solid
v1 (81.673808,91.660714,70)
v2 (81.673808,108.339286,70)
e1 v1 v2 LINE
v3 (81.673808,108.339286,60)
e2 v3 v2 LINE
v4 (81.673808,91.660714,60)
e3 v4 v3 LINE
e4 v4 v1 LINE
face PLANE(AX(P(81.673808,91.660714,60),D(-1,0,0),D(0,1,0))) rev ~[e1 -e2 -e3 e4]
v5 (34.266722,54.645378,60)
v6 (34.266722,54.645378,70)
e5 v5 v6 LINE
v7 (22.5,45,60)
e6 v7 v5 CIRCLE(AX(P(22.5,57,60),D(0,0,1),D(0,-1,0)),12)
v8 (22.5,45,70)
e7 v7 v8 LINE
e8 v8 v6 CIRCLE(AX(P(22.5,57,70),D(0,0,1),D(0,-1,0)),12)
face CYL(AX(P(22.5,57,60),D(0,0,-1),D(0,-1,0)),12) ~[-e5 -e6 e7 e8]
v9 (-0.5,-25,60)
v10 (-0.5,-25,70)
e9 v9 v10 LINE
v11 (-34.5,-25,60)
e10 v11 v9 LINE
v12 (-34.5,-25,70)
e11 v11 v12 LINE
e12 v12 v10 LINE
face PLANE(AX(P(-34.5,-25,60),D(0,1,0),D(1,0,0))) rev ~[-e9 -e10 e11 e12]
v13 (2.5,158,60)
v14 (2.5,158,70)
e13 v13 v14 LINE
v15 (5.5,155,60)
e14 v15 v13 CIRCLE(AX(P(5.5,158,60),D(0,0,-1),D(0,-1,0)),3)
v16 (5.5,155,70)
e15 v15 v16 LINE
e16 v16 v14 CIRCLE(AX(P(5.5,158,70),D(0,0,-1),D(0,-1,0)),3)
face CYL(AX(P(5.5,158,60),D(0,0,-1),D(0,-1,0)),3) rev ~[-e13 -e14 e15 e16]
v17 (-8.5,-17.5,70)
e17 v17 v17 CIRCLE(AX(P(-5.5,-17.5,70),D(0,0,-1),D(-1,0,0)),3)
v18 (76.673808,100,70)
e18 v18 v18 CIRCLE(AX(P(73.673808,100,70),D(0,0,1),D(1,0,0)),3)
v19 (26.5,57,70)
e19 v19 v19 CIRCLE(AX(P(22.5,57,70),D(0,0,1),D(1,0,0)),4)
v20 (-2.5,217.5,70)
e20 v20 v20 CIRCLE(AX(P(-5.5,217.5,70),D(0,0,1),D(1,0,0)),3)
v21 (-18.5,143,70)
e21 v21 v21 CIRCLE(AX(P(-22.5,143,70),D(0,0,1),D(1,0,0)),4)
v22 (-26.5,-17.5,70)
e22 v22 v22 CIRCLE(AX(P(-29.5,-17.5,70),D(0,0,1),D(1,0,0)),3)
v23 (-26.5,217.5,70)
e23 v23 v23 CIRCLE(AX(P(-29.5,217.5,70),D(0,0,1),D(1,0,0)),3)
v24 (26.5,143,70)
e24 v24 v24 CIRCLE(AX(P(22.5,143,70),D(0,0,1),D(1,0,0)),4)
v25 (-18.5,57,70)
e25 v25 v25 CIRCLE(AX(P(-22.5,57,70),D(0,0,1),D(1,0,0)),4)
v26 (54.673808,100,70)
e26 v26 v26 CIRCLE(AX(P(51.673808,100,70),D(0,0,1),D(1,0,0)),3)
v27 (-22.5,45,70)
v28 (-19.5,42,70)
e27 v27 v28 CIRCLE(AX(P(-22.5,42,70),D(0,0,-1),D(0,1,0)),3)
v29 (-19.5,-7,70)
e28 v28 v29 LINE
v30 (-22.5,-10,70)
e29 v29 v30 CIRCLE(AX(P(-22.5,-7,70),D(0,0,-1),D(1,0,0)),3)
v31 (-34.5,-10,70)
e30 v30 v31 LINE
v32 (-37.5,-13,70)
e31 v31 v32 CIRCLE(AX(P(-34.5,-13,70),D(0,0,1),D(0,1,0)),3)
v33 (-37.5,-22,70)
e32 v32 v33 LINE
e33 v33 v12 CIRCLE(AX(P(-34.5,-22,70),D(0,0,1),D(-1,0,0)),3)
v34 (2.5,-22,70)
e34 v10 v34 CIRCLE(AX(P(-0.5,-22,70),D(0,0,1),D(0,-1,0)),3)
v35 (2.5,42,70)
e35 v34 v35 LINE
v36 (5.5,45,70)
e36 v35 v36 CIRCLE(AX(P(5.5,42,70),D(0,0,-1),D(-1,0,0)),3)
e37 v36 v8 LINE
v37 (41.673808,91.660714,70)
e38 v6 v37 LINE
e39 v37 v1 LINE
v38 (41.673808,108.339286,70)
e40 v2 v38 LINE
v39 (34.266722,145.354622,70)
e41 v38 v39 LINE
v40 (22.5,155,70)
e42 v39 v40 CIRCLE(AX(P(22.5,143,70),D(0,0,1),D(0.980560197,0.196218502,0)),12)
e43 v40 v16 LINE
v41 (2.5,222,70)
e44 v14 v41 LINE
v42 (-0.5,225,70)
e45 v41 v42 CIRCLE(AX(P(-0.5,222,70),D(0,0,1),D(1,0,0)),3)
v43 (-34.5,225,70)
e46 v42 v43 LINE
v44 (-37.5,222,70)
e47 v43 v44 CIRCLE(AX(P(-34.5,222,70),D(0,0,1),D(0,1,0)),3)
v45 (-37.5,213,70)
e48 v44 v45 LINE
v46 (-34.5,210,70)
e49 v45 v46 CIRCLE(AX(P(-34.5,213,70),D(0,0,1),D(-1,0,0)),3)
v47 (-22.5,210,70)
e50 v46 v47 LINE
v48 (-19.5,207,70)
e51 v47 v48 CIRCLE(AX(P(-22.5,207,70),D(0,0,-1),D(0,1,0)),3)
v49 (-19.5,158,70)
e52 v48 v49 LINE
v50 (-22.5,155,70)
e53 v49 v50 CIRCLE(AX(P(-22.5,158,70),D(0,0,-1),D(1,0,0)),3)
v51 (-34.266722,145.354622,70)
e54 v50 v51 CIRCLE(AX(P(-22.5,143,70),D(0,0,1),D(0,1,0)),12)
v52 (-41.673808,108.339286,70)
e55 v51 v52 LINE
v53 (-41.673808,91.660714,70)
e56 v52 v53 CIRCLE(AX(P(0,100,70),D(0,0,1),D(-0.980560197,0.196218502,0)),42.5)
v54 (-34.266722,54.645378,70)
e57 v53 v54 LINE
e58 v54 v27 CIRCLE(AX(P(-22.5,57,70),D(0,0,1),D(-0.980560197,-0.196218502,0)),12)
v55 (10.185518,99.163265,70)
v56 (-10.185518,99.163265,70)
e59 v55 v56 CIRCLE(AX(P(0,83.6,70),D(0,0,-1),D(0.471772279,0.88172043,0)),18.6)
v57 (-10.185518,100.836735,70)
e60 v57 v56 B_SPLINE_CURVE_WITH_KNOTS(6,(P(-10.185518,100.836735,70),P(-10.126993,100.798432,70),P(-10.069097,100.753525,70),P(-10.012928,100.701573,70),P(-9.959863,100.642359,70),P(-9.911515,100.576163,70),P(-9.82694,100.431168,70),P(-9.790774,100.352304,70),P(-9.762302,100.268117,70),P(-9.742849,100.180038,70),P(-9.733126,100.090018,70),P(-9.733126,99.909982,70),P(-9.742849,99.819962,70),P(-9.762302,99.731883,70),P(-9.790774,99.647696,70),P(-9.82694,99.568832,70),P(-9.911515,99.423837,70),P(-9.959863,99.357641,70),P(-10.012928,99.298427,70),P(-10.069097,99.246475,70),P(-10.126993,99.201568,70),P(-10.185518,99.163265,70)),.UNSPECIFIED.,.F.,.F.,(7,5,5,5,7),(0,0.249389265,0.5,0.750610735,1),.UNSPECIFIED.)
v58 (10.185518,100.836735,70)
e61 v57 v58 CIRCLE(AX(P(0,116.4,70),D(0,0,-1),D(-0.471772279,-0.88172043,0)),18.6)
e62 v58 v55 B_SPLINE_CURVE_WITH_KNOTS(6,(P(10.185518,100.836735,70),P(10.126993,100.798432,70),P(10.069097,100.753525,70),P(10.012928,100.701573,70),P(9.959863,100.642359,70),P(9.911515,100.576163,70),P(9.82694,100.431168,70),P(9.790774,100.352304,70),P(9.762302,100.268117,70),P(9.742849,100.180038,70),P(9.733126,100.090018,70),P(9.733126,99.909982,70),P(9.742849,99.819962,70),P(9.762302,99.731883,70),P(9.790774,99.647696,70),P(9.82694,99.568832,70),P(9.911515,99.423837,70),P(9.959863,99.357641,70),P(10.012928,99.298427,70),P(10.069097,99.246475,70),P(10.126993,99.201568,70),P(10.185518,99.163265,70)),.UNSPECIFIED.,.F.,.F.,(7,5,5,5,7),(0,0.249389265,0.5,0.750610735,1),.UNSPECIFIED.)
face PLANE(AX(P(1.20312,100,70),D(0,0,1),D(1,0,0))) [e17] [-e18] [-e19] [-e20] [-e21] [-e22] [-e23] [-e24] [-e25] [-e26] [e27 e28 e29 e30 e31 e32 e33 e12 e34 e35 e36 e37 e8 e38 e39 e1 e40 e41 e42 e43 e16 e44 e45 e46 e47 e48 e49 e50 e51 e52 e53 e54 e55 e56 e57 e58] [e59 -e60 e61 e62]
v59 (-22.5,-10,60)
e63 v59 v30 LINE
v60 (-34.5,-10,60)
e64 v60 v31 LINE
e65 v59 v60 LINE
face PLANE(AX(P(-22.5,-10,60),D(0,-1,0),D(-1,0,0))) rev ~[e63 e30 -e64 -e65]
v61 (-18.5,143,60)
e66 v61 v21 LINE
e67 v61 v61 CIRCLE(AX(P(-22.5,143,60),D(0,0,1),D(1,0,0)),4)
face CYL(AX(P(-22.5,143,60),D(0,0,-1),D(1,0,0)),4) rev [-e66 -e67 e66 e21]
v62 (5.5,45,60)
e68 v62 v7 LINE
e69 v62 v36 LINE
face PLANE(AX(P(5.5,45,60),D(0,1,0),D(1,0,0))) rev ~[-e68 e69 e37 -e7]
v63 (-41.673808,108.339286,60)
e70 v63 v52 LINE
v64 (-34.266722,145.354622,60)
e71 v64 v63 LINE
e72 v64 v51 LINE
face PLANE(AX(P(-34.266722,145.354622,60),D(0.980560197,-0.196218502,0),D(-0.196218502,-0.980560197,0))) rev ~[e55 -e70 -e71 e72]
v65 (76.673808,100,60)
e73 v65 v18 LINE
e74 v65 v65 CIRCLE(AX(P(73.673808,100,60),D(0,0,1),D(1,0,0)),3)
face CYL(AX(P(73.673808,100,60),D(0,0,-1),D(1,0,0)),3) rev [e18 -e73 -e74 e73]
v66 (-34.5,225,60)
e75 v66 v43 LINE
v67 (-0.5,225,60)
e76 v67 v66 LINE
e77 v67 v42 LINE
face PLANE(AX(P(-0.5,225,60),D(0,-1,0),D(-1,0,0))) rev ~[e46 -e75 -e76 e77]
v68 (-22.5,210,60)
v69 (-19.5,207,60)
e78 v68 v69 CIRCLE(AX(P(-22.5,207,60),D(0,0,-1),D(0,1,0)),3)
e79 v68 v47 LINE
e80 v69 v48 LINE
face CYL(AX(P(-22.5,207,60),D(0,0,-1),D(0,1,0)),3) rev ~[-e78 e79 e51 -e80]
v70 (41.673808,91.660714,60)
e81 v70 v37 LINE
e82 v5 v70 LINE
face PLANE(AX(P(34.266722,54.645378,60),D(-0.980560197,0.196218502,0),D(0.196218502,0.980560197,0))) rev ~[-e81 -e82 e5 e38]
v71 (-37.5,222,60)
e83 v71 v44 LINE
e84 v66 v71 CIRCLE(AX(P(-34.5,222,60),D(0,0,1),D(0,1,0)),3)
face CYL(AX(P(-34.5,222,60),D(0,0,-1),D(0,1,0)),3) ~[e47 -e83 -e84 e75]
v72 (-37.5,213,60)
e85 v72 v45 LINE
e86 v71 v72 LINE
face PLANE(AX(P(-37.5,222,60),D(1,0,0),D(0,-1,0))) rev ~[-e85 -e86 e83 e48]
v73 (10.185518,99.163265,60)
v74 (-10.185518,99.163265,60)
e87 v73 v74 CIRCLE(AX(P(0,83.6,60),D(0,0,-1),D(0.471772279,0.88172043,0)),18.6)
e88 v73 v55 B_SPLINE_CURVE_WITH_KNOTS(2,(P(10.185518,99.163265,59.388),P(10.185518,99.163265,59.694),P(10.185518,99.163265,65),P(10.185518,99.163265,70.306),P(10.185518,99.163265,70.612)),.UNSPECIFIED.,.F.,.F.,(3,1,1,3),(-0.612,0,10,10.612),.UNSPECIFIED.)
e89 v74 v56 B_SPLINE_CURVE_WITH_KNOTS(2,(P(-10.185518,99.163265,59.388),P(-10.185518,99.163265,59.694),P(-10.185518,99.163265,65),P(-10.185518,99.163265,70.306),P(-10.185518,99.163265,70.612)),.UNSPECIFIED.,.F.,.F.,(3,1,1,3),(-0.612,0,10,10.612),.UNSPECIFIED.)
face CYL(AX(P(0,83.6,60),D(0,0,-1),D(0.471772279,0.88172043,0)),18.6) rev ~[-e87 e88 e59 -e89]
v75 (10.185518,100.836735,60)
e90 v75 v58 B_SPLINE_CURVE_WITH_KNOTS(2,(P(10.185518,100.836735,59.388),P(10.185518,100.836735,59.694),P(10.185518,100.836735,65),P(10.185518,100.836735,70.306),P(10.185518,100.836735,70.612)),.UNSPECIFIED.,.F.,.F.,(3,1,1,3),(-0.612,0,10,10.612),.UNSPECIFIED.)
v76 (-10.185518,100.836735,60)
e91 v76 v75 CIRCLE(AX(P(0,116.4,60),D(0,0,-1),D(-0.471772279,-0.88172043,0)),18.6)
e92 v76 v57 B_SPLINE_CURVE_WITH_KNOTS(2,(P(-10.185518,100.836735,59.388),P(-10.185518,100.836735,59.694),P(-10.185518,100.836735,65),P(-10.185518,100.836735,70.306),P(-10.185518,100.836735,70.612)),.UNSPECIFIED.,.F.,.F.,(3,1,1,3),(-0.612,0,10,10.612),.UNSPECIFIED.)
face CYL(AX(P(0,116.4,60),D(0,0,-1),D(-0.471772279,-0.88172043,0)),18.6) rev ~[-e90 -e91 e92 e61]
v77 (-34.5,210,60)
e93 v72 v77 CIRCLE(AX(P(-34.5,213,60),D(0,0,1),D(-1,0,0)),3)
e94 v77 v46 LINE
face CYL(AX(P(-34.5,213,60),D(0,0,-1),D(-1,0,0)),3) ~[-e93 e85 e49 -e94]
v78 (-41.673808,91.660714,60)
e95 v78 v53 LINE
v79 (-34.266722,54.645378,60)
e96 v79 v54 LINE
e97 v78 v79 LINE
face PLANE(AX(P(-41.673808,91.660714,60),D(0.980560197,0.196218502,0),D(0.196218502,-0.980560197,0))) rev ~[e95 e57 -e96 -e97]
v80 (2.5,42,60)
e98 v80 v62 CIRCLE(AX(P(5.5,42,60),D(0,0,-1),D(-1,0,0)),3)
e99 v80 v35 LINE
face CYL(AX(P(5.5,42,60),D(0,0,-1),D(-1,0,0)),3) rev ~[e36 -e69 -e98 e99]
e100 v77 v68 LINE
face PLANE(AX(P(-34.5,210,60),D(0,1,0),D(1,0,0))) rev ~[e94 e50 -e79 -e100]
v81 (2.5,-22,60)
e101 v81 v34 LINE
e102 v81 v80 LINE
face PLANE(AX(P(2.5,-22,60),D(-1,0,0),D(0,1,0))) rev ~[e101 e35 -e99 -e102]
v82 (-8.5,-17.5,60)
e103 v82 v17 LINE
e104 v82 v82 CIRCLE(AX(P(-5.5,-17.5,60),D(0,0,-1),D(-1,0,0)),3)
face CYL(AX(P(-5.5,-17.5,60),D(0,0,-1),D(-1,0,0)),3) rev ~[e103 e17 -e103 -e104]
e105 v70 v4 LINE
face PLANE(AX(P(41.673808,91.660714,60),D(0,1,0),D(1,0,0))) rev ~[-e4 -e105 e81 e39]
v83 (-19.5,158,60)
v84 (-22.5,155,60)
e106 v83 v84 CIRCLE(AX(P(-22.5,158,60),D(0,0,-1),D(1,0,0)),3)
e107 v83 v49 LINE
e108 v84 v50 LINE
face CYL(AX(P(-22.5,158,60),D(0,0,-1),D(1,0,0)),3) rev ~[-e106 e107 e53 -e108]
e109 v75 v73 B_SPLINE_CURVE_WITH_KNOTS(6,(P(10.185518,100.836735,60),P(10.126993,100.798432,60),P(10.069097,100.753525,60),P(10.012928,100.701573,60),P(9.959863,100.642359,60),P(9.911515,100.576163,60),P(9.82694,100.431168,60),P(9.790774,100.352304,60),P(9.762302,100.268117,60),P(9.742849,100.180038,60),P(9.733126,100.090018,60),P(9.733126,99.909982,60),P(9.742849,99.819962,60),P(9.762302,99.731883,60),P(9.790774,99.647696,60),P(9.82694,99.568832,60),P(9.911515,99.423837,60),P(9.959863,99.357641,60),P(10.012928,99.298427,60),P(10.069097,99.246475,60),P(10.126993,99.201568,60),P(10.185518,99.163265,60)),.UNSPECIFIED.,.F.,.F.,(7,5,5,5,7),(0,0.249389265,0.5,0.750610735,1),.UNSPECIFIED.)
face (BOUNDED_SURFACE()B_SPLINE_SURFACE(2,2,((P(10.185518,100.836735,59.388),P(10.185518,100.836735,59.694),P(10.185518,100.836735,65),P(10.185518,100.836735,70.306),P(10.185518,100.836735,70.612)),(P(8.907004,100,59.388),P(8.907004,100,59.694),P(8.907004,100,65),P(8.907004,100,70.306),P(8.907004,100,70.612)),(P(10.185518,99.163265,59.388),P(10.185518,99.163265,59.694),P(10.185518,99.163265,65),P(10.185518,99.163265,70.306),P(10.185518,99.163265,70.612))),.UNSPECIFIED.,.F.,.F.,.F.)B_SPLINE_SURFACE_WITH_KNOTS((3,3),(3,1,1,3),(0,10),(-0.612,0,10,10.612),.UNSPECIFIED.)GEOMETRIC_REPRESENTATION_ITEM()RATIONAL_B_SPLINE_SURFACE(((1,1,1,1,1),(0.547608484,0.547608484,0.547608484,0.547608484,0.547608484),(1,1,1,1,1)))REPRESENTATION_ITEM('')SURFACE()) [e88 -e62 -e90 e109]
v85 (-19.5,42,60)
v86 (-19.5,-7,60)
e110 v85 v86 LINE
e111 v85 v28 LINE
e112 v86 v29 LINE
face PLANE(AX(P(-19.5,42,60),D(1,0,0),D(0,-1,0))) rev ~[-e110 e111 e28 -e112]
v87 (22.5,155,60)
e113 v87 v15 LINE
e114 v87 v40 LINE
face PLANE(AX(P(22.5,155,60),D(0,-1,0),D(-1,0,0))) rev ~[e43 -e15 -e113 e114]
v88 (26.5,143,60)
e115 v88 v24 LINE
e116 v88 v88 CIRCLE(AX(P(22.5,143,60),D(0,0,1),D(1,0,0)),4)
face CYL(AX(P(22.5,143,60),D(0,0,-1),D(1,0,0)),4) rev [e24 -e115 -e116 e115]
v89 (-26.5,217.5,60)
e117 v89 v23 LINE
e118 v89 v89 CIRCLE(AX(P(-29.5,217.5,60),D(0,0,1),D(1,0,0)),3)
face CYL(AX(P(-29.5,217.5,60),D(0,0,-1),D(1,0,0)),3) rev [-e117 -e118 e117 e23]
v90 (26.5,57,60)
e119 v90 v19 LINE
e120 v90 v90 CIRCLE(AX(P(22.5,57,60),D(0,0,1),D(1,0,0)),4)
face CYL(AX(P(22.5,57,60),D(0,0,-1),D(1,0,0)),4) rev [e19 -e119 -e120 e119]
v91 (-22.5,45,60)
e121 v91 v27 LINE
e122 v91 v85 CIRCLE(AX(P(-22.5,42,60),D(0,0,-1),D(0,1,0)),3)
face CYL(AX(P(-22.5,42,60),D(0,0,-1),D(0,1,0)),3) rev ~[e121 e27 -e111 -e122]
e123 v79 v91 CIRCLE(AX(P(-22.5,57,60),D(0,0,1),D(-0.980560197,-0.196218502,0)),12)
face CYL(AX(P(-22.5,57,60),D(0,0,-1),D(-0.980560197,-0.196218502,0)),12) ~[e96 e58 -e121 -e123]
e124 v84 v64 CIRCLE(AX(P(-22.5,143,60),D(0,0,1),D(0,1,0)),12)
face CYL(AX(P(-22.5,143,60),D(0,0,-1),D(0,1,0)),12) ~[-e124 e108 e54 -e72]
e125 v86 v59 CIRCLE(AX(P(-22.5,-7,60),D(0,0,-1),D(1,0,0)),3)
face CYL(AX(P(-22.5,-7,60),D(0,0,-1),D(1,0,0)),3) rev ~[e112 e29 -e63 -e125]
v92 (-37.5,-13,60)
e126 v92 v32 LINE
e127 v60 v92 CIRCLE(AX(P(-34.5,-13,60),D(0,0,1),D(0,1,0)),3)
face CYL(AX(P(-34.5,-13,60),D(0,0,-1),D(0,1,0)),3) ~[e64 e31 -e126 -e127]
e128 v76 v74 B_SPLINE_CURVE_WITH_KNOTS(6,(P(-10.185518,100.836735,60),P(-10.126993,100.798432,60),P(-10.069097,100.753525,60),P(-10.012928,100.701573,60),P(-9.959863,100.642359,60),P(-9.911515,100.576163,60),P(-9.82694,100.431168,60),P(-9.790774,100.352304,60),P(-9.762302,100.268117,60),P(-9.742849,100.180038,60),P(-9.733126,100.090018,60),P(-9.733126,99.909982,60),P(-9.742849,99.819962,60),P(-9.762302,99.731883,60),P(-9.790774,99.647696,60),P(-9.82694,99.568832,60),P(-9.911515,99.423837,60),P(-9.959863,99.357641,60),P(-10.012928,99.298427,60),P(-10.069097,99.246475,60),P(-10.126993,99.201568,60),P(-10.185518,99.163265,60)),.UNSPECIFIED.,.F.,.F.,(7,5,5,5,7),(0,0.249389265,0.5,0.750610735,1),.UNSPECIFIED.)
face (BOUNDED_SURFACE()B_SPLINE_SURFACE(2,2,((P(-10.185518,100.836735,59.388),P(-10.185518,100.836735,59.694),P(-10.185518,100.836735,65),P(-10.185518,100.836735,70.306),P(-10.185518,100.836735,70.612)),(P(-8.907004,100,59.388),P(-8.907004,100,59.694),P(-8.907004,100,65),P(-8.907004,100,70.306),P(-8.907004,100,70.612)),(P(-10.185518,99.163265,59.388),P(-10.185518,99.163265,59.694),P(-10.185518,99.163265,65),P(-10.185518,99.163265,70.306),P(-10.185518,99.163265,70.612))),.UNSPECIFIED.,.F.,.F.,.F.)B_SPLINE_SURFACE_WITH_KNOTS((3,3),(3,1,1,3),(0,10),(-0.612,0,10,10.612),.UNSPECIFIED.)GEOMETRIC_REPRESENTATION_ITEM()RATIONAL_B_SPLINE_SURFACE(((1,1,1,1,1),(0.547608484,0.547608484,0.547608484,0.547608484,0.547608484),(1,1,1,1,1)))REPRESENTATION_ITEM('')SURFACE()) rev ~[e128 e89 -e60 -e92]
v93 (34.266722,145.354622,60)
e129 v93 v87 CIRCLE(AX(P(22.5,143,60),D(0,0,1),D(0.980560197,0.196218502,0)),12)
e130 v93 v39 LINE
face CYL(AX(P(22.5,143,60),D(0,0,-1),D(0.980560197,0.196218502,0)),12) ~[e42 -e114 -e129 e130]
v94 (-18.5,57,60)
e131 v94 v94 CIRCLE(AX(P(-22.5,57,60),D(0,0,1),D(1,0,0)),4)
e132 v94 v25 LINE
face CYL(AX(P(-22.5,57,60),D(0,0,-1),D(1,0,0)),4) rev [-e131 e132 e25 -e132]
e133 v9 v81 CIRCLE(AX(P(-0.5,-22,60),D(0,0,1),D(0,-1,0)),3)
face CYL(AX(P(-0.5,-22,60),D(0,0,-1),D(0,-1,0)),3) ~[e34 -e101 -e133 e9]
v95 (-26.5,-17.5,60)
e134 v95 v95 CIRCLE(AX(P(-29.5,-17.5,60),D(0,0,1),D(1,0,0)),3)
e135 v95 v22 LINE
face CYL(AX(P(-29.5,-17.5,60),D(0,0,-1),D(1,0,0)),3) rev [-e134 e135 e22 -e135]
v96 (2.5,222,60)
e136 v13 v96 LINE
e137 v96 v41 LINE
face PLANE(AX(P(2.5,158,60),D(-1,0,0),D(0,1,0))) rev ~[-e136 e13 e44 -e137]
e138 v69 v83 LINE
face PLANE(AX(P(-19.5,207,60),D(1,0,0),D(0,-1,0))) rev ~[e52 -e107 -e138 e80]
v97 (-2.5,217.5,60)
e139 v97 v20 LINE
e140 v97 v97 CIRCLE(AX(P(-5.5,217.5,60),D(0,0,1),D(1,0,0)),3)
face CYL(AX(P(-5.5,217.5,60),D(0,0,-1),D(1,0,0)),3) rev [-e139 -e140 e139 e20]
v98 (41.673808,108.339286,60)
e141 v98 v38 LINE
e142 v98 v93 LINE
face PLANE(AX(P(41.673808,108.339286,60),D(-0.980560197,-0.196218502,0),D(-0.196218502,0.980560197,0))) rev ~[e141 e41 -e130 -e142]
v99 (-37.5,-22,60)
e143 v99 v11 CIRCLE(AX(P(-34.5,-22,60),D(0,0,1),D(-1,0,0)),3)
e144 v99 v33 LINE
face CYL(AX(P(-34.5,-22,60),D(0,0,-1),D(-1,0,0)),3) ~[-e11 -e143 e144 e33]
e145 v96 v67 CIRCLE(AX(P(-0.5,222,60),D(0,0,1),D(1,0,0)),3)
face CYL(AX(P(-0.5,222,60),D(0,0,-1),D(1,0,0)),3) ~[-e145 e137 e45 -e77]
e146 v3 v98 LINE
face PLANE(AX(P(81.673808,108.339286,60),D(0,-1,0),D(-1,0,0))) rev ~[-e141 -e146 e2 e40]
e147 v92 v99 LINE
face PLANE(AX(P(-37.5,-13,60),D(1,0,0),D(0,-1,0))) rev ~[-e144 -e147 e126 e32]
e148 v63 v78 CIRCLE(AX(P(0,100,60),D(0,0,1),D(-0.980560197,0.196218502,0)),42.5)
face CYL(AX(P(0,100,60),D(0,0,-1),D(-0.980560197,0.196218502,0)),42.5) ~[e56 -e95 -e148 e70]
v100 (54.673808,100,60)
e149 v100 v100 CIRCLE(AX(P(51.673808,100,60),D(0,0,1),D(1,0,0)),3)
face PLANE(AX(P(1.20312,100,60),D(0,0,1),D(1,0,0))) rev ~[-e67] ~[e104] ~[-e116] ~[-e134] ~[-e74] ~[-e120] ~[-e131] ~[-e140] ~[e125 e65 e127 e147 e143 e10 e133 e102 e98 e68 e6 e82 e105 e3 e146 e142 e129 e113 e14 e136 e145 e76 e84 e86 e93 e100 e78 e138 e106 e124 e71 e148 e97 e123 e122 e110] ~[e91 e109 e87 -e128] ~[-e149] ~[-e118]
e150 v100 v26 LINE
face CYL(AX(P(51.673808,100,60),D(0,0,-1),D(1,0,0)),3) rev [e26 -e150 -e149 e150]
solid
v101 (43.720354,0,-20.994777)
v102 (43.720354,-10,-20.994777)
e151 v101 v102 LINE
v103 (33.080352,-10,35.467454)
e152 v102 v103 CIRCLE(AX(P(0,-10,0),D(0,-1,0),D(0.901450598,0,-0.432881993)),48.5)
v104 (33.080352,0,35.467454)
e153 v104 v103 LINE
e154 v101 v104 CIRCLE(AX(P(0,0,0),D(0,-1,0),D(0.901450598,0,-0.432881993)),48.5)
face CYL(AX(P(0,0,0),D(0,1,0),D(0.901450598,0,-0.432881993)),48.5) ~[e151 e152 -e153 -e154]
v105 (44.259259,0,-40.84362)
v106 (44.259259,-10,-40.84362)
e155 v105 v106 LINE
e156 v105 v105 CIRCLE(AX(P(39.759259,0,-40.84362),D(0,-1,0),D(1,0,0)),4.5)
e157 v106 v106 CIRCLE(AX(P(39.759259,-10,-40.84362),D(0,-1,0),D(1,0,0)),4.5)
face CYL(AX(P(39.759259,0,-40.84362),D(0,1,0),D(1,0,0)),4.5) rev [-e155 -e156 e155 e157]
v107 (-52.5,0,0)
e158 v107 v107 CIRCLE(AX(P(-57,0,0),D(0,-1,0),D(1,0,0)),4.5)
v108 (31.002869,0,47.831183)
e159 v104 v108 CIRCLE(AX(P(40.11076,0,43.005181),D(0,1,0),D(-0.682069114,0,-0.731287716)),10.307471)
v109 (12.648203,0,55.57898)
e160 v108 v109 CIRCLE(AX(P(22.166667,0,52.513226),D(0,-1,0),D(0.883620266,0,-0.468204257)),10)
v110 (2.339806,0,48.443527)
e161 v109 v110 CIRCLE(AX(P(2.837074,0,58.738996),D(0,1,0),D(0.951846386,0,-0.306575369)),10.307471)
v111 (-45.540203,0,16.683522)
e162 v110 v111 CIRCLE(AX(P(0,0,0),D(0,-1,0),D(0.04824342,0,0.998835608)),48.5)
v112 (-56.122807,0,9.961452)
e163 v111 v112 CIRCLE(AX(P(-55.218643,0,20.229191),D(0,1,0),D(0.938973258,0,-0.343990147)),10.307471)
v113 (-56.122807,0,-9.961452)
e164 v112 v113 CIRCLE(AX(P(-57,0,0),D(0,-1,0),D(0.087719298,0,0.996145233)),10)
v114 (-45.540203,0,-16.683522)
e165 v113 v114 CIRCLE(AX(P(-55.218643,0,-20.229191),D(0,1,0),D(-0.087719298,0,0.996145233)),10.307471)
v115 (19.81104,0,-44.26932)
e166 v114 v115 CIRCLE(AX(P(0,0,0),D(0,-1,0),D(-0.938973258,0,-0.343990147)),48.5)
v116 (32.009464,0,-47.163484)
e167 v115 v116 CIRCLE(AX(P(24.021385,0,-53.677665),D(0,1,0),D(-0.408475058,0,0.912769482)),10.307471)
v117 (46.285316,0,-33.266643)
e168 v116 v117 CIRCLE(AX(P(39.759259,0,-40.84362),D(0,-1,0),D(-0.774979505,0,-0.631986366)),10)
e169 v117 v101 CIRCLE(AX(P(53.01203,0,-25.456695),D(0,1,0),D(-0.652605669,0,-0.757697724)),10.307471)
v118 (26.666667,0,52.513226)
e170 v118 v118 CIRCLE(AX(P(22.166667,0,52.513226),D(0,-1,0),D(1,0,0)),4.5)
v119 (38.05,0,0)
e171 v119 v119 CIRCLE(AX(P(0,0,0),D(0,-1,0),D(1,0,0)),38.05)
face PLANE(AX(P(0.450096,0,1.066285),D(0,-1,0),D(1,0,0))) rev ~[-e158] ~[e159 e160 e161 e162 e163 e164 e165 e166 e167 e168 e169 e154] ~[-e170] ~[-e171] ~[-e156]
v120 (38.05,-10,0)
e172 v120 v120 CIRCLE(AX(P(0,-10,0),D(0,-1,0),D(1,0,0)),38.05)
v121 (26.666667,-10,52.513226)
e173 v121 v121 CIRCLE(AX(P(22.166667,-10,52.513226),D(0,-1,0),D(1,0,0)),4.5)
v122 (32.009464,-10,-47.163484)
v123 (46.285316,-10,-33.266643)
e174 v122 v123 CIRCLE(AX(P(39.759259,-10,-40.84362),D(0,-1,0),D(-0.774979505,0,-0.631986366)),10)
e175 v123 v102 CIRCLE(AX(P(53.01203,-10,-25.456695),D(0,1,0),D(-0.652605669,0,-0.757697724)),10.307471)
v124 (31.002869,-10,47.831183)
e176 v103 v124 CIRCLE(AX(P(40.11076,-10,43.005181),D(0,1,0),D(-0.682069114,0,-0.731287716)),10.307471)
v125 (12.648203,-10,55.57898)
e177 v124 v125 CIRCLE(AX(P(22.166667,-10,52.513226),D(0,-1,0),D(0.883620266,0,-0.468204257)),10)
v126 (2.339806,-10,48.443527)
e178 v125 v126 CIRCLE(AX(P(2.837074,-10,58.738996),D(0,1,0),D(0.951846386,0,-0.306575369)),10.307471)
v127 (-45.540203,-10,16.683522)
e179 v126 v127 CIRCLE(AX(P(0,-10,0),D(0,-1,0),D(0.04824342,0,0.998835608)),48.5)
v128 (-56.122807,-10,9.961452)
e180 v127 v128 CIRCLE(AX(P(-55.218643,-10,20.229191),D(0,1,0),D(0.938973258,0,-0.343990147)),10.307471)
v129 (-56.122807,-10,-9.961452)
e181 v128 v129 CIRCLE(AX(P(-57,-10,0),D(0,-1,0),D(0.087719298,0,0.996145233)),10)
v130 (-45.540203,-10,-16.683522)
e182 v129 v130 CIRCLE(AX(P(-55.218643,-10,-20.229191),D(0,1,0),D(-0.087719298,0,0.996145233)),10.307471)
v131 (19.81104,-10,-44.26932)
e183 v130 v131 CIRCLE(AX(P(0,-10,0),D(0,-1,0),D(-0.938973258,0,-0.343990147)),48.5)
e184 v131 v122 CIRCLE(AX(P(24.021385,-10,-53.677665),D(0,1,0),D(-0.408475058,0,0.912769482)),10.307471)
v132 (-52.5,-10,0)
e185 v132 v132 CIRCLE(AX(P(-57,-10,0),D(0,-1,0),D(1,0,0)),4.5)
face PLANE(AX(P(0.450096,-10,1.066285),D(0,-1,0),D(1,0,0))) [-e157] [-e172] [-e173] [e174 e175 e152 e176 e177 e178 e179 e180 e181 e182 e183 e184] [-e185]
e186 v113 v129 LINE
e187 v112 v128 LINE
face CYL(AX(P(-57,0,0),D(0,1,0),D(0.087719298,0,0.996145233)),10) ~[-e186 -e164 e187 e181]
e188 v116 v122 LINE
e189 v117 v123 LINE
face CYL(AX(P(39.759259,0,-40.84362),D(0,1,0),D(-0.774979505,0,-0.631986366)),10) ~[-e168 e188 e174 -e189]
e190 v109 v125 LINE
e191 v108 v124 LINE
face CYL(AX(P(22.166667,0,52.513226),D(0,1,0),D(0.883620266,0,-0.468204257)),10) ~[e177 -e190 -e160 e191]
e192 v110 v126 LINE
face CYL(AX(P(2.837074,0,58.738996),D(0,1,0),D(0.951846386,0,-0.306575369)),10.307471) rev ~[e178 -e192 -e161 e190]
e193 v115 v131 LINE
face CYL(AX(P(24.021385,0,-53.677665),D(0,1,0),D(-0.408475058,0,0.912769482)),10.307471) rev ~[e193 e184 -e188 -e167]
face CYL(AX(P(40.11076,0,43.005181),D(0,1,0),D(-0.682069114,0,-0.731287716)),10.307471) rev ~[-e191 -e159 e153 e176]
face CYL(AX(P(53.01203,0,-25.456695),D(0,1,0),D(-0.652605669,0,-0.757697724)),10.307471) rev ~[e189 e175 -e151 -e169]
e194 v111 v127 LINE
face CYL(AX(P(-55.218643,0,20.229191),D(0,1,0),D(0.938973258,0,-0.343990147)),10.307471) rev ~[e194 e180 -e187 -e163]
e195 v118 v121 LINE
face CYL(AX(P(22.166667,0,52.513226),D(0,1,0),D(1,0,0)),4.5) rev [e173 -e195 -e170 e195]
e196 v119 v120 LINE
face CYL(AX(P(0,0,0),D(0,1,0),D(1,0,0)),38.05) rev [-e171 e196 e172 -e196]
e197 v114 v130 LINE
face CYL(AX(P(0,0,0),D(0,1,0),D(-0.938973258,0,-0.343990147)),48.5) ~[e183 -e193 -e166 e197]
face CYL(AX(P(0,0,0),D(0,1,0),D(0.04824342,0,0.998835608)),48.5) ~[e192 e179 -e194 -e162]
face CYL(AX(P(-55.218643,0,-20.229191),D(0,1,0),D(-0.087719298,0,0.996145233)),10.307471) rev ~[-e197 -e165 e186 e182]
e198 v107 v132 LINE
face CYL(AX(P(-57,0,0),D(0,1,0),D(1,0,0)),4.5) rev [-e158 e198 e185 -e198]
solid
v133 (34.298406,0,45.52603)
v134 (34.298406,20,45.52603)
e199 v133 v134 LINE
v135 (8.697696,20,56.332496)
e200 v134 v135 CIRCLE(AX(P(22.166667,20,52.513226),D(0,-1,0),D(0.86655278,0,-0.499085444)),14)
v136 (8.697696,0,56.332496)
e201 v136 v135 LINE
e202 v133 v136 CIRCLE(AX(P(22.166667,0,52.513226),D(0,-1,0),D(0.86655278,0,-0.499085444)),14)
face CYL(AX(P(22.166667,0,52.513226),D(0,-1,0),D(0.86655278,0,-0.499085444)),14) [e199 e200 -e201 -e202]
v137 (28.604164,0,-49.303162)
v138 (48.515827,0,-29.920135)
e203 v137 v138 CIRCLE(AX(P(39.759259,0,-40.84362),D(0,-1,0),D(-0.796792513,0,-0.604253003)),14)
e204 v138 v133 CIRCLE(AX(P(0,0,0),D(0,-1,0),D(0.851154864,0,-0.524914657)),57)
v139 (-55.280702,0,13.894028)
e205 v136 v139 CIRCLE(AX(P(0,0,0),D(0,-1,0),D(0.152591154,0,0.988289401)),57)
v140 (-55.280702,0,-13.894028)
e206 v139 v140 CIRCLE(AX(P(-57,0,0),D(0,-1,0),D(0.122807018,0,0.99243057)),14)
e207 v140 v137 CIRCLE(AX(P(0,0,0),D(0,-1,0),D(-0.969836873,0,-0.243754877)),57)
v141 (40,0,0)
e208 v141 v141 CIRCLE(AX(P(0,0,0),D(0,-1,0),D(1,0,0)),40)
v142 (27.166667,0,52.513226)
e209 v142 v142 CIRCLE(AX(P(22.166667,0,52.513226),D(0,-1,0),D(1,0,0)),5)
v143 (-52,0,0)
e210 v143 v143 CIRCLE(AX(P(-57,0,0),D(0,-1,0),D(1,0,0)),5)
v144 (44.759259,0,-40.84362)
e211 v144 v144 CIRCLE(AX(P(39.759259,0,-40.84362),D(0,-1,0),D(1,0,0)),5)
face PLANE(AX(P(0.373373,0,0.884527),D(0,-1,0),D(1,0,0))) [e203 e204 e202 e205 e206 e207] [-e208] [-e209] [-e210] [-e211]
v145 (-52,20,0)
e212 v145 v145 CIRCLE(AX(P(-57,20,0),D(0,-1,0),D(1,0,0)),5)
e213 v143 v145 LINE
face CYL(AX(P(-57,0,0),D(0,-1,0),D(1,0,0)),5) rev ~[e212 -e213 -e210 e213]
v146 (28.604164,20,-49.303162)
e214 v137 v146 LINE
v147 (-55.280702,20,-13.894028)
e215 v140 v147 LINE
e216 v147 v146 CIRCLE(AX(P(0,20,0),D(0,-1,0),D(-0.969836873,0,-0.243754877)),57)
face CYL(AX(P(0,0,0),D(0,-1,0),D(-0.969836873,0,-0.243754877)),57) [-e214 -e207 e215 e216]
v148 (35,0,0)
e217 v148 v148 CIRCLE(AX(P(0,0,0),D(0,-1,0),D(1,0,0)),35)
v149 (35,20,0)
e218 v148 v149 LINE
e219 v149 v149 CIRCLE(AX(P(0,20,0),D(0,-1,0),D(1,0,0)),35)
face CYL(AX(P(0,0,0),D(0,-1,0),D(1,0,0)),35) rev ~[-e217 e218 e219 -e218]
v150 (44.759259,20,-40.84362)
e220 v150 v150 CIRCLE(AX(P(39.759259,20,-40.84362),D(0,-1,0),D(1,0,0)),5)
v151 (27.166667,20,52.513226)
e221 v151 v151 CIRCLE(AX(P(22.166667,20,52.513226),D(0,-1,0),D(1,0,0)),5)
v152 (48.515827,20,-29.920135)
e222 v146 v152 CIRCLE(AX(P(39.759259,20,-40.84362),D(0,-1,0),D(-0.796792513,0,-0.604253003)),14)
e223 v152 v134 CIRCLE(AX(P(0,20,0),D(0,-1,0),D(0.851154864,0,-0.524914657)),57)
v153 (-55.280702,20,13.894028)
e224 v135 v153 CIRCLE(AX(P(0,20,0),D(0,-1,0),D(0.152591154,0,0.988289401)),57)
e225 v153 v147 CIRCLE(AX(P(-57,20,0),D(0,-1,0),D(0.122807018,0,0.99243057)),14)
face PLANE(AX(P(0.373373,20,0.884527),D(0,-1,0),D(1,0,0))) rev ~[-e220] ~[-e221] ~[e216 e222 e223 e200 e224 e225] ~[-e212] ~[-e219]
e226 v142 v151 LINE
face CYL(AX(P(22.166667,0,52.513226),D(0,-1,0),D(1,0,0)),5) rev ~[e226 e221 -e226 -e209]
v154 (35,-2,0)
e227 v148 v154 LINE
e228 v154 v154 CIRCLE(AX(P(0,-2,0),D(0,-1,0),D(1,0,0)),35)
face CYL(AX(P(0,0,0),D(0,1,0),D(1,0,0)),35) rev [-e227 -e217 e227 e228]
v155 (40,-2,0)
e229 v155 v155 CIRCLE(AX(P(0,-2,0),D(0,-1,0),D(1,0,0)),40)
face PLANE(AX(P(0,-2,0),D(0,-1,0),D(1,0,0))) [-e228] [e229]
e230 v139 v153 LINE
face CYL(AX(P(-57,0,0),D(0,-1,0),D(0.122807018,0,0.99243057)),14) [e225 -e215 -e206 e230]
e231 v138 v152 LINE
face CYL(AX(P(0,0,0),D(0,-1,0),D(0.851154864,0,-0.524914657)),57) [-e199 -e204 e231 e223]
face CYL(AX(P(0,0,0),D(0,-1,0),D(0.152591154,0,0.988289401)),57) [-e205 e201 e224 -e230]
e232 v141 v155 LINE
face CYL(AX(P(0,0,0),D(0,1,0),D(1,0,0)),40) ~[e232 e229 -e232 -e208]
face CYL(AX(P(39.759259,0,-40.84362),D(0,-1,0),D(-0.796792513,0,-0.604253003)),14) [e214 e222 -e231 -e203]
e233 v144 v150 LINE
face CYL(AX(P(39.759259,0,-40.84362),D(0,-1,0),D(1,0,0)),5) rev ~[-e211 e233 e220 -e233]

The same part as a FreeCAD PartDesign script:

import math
import FreeCAD as App
import Part
import Sketcher
Q = App.Units.Quantity


def edges_at(feature, points):
    """Names of the edges that pass closest to the given points."""
    edges = feature.Shape.Edges
    near = lambda p: min(range(len(edges)), key=lambda i: edges[i].distToShape(Part.Vertex(*p))[0])
    return sorted({f"Edge{near(p) + 1}" for p in points})

doc = App.newDocument("Part")
body = doc.addObject("PartDesign::Body", "Body")

# Sketch on XZ plane
sketch1 = doc.addObject("Sketcher::SketchObject", "Sketch")
body.addObject(sketch1)
sketch1.AttachmentSupport = (doc.XZ_Plane, [""])
sketch1.MapMode = "FlatFace"
sketch1.addGeometry([
    Part.Circle(App.Vector(0, 0, 0), App.Vector(0, 0, 1), 40),
    Part.Circle(App.Vector(0, 0, 0), App.Vector(0, 0, 1), 35),
], False)
sketch1.addConstraint([
    Sketcher.Constraint("Coincident", 0, 3, -1, 1),
    Sketcher.Constraint("Coincident", 1, 3, -1, 1),
    Sketcher.Constraint("Diameter", 0, Q("80 mm")),
    Sketcher.Constraint("Diameter", 1, Q("70 mm")),
])
pad1 = doc.addObject("PartDesign::Pad", "Pad")
body.addObject(pad1)
pad1.Profile = sketch1
pad1.Length = 2

# Sketch on XZ plane
sketch2 = doc.addObject("Sketcher::SketchObject", "Sketch001")
body.addObject(sketch2)
sketch2.AttachmentSupport = (doc.XZ_Plane, [""])
sketch2.MapMode = "FlatFace"
sketch2.addGeometry([
    Part.ArcOfCircle(Part.Circle(App.Vector(0, 0, 0), App.Vector(0, 0, 1), 57), math.radians(-32), math.radians(53)),  # 0
    Part.ArcOfCircle(Part.Circle(App.Vector(22, 53, 0), App.Vector(0, 0, 1), 14), math.radians(-30), math.radians(164)),  # 1
    Part.ArcOfCircle(Part.Circle(App.Vector(0, 0, 0), App.Vector(0, 0, 1), 57), math.radians(81), math.radians(166)),  # 2
    Part.ArcOfCircle(Part.Circle(App.Vector(-57, 0, 0), App.Vector(0, 0, 1), 14), math.radians(83), math.radians(277)),  # 3
    Part.ArcOfCircle(Part.Circle(App.Vector(0, 0, 0), App.Vector(0, 0, 1), 57), math.radians(-166), math.radians(-60)),  # 4
    Part.ArcOfCircle(Part.Circle(App.Vector(40, -41, 0), App.Vector(0, 0, 1), 14), math.radians(-143), math.radians(51)),  # 5
    Part.Circle(App.Vector(-57, 0, 0), App.Vector(0, 0, 1), 5),  # 6
    Part.Circle(App.Vector(40, -41, 0), App.Vector(0, 0, 1), 5),  # 7
    Part.Circle(App.Vector(0, 0, 0), App.Vector(0, 0, 1), 35),  # 8
    Part.Circle(App.Vector(22, 53, 0), App.Vector(0, 0, 1), 5),  # 9
], False)
sketch2.addConstraint([
    Sketcher.Constraint("Coincident", 0, 2, 1, 1),
    Sketcher.Constraint("Coincident", 1, 2, 2, 1),
    Sketcher.Constraint("Coincident", 2, 2, 3, 1),
    Sketcher.Constraint("Coincident", 3, 2, 4, 1),
    Sketcher.Constraint("Coincident", 4, 2, 5, 1),
    Sketcher.Constraint("Coincident", 5, 2, 0, 1),
    Sketcher.Constraint("Coincident", 0, 3, -1, 1),
    Sketcher.Constraint("Coincident", 2, 3, -1, 1),
    Sketcher.Constraint("Coincident", 4, 3, -1, 1),
    Sketcher.Constraint("Coincident", 8, 3, -1, 1),
    Sketcher.Constraint("Coincident", 6, 3, 3, 3),
    Sketcher.Constraint("Coincident", 7, 3, 5, 3),
    Sketcher.Constraint("Coincident", 9, 3, 1, 3),
    Sketcher.Constraint("Equal", 0, 2),
    Sketcher.Constraint("Equal", 1, 3),
    Sketcher.Constraint("Equal", 2, 4),
    Sketcher.Constraint("Equal", 3, 5),
    Sketcher.Constraint("Equal", 6, 7),
    Sketcher.Constraint("Equal", 7, 9),
    Sketcher.Constraint("PointOnObject", 3, 3, -1),
    Sketcher.Constraint("Diameter", 6, Q("10 mm")),
    Sketcher.Constraint("Diameter", 8, Q("70 mm")),
    Sketcher.Constraint("Radius", 0, Q("57 mm")),
    Sketcher.Constraint("Radius", 1, Q("14 mm")),
    Sketcher.Constraint("DistanceX", 3, 3, -1, 1, Q("57 mm")),
    Sketcher.Constraint("DistanceX", -1, 1, 5, 3, Q("39.759259 mm")),
    Sketcher.Constraint("DistanceY", 5, 3, -1, 1, Q("40.84362 mm")),
    Sketcher.Constraint("DistanceY", -1, 1, 0, 2, Q("45.52603 mm")),
    Sketcher.Constraint("DistanceX", 1, 3, 0, 2, Q("12.131739 mm")),
])
pad2 = doc.addObject("PartDesign::Pad", "Pad001")
body.addObject(pad2)
pad2.Profile = sketch2
pad2.Length = 20
pad2.Reversed = True
body2 = doc.addObject("PartDesign::Body", "Body001")

# Sketch on XY plane
sketch3 = doc.addObject("Sketcher::SketchObject", "Sketch002")
body2.addObject(sketch3)
sketch3.AttachmentSupport = (doc.getObject("XY_Plane001"), [""])
sketch3.MapMode = "FlatFace"
sketch3.AttachmentOffset = App.Placement(App.Vector(0, 0, 60), App.Rotation())
sketch3.addGeometry([
    Part.LineSegment(App.Vector(-34.3, 145.4, 0), App.Vector(-41.7, 108.3, 0)),  # 0
    Part.ArcOfCircle(Part.Circle(App.Vector(0, 100, 0), App.Vector(0, 0, 1), 42.5), math.radians(169), math.radians(191)),  # 1
    Part.LineSegment(App.Vector(-41.7, 91.7, 0), App.Vector(-34.3, 54.6, 0)),  # 2
    Part.ArcOfCircle(Part.Circle(App.Vector(-22.5, 57, 0), App.Vector(0, 0, 1), 12), math.radians(-169), math.radians(-90)),  # 3
    Part.ArcOfCircle(Part.Circle(App.Vector(-22.5, 42, 0), App.Vector(0, 0, 1), 3), math.radians(0), math.radians(90)),  # 4
    Part.LineSegment(App.Vector(-19.5, 42, 0), App.Vector(-19.5, -7, 0)),  # 5
    Part.ArcOfCircle(Part.Circle(App.Vector(-22.5, -7, 0), App.Vector(0, 0, 1), 3), math.radians(-90), math.radians(0)),  # 6
    Part.LineSegment(App.Vector(-22.5, -10, 0), App.Vector(-34.5, -10, 0)),  # 7
    Part.ArcOfCircle(Part.Circle(App.Vector(-34.5, -13, 0), App.Vector(0, 0, 1), 3), math.radians(90), math.radians(180)),  # 8
    Part.LineSegment(App.Vector(-37.5, -13, 0), App.Vector(-37.5, -22, 0)),  # 9
    Part.ArcOfCircle(Part.Circle(App.Vector(-34.5, -22, 0), App.Vector(0, 0, 1), 3), math.radians(180), math.radians(270)),  # 10
    Part.LineSegment(App.Vector(-34.5, -25, 0), App.Vector(-0.5, -25, 0)),  # 11
    Part.ArcOfCircle(Part.Circle(App.Vector(-0.5, -22, 0), App.Vector(0, 0, 1), 3), math.radians(-90), math.radians(0)),  # 12
    Part.LineSegment(App.Vector(2.5, -22, 0), App.Vector(2.5, 42, 0)),  # 13
    Part.ArcOfCircle(Part.Circle(App.Vector(5.5, 42, 0), App.Vector(0, 0, 1), 3), math.radians(90), math.radians(180)),  # 14
    Part.LineSegment(App.Vector(5.5, 45, 0), App.Vector(22.5, 45, 0)),  # 15
    Part.ArcOfCircle(Part.Circle(App.Vector(22.5, 57, 0), App.Vector(0, 0, 1), 12), math.radians(-90), math.radians(-11)),  # 16
    Part.LineSegment(App.Vector(34.3, 54.6, 0), App.Vector(41.7, 91.7, 0)),  # 17
    Part.LineSegment(App.Vector(41.7, 91.7, 0), App.Vector(81.7, 91.7, 0)),  # 18
    Part.LineSegment(App.Vector(81.7, 91.7, 0), App.Vector(81.7, 108.3, 0)),  # 19
    Part.LineSegment(App.Vector(81.7, 108.3, 0), App.Vector(41.7, 108.3, 0)),  # 20
    Part.LineSegment(App.Vector(41.7, 108.3, 0), App.Vector(34.3, 145.4, 0)),  # 21
    Part.ArcOfCircle(Part.Circle(App.Vector(22.5, 143, 0), App.Vector(0, 0, 1), 12), math.radians(11), math.radians(90)),  # 22
    Part.LineSegment(App.Vector(22.5, 155, 0), App.Vector(5.5, 155, 0)),  # 23
    Part.ArcOfCircle(Part.Circle(App.Vector(5.5, 158, 0), App.Vector(0, 0, 1), 3), math.radians(180), math.radians(270)),  # 24
    Part.LineSegment(App.Vector(2.5, 158, 0), App.Vector(2.5, 222, 0)),  # 25
    Part.ArcOfCircle(Part.Circle(App.Vector(-0.5, 222, 0), App.Vector(0, 0, 1), 3), math.radians(0), math.radians(90)),  # 26
    Part.LineSegment(App.Vector(-0.5, 225, 0), App.Vector(-34.5, 225, 0)),  # 27
    Part.ArcOfCircle(Part.Circle(App.Vector(-34.5, 222, 0), App.Vector(0, 0, 1), 3), math.radians(90), math.radians(180)),  # 28
    Part.LineSegment(App.Vector(-37.5, 222, 0), App.Vector(-37.5, 213, 0)),  # 29
    Part.ArcOfCircle(Part.Circle(App.Vector(-34.5, 213, 0), App.Vector(0, 0, 1), 3), math.radians(180), math.radians(270)),  # 30
    Part.LineSegment(App.Vector(-34.5, 210, 0), App.Vector(-22.5, 210, 0)),  # 31
    Part.ArcOfCircle(Part.Circle(App.Vector(-22.5, 207, 0), App.Vector(0, 0, 1), 3), math.radians(0), math.radians(90)),  # 32
    Part.LineSegment(App.Vector(-19.5, 207, 0), App.Vector(-19.5, 158, 0)),  # 33
    Part.ArcOfCircle(Part.Circle(App.Vector(-22.5, 158, 0), App.Vector(0, 0, 1), 3), math.radians(-90), math.radians(0)),  # 34
    Part.ArcOfCircle(Part.Circle(App.Vector(-22.5, 143, 0), App.Vector(0, 0, 1), 12), math.radians(90), math.radians(169)),  # 35
    Part.Circle(App.Vector(-29.5, -17.5, 0), App.Vector(0, 0, 1), 3),  # 36
    Part.Circle(App.Vector(-5.5, -17.5, 0), App.Vector(0, 0, 1), 3),  # 37
    Part.Circle(App.Vector(-22.5, 57, 0), App.Vector(0, 0, 1), 4),  # 38
    Part.Circle(App.Vector(22.5, 57, 0), App.Vector(0, 0, 1), 4),  # 39
    Part.Circle(App.Vector(-22.5, 143, 0), App.Vector(0, 0, 1), 4),  # 40
    Part.ArcOfCircle(Part.Circle(App.Vector(0, 116.4, 0), App.Vector(0, 0, 1), 18.6), math.radians(-62), math.radians(242)),  # 41
    Part.ArcOfCircle(Part.Circle(App.Vector(0, 83.6, 0), App.Vector(0, 0, 1), 18.6), math.radians(118), math.radians(422)),  # 42
    Part.Circle(App.Vector(-29.5, 217.5, 0), App.Vector(0, 0, 1), 3),  # 43
    Part.Circle(App.Vector(-5.5, 217.5, 0), App.Vector(0, 0, 1), 3),  # 44
    Part.Circle(App.Vector(22.5, 143, 0), App.Vector(0, 0, 1), 4),  # 45
    Part.Circle(App.Vector(51.7, 100, 0), App.Vector(0, 0, 1), 3),  # 46
    Part.Circle(App.Vector(73.7, 100, 0), App.Vector(0, 0, 1), 3),  # 47
], False)
sketch3.addConstraint([
    Sketcher.Constraint("Tangent", 0, 2, 1, 1),
    Sketcher.Constraint("Tangent", 1, 2, 2, 1),
    Sketcher.Constraint("Tangent", 2, 2, 3, 1),
    Sketcher.Constraint("Tangent", 3, 2, 4, 2),
    Sketcher.Constraint("Tangent", 4, 1, 5, 1),
    Sketcher.Constraint("Tangent", 5, 2, 6, 2),
    Sketcher.Constraint("Tangent", 6, 1, 7, 1),
    Sketcher.Constraint("Tangent", 7, 2, 8, 1),
    Sketcher.Constraint("Tangent", 8, 2, 9, 1),
    Sketcher.Constraint("Tangent", 9, 2, 10, 1),
    Sketcher.Constraint("Tangent", 10, 2, 11, 1),
    Sketcher.Constraint("Tangent", 11, 2, 12, 1),
    Sketcher.Constraint("Tangent", 12, 2, 13, 1),
    Sketcher.Constraint("Tangent", 13, 2, 14, 2),
    Sketcher.Constraint("Tangent", 14, 1, 15, 1),
    Sketcher.Constraint("Tangent", 15, 2, 16, 1),
    Sketcher.Constraint("Tangent", 16, 2, 17, 1),
    Sketcher.Constraint("Coincident", 17, 2, 18, 1),
    Sketcher.Constraint("Coincident", 18, 2, 19, 1),
    Sketcher.Constraint("Coincident", 19, 2, 20, 1),
    Sketcher.Constraint("Coincident", 20, 2, 21, 1),
    Sketcher.Constraint("Tangent", 21, 2, 22, 1),
    Sketcher.Constraint("Tangent", 22, 2, 23, 1),
    Sketcher.Constraint("Tangent", 23, 2, 24, 2),
    Sketcher.Constraint("Tangent", 24, 1, 25, 1),
    Sketcher.Constraint("Tangent", 25, 2, 26, 1),
    Sketcher.Constraint("Tangent", 26, 2, 27, 1),
    Sketcher.Constraint("Tangent", 27, 2, 28, 1),
    Sketcher.Constraint("Tangent", 28, 2, 29, 1),
    Sketcher.Constraint("Tangent", 29, 2, 30, 1),
    Sketcher.Constraint("Tangent", 30, 2, 31, 1),
    Sketcher.Constraint("Tangent", 31, 2, 32, 2),
    Sketcher.Constraint("Tangent", 32, 1, 33, 1),
    Sketcher.Constraint("Tangent", 33, 2, 34, 2),
    Sketcher.Constraint("Tangent", 34, 1, 35, 1),
    Sketcher.Constraint("Tangent", 35, 2, 0, 1),
    Sketcher.Constraint("Coincident", 41, 1, 42, 2),
    Sketcher.Constraint("Coincident", 42, 1, 41, 2),
    Sketcher.Constraint("Vertical", 5),
    Sketcher.Constraint("Horizontal", 7),
    Sketcher.Constraint("Vertical", 9),
    Sketcher.Constraint("Horizontal", 11),
    Sketcher.Constraint("Vertical", 13),
    Sketcher.Constraint("Horizontal", 15),
    Sketcher.Constraint("Horizontal", 18),
    Sketcher.Constraint("Vertical", 19),
    Sketcher.Constraint("Horizontal", 20),
    Sketcher.Constraint("Horizontal", 23),
    Sketcher.Constraint("Vertical", 25),
    Sketcher.Constraint("Horizontal", 27),
    Sketcher.Constraint("Vertical", 29),
    Sketcher.Constraint("Horizontal", 31),
    Sketcher.Constraint("Vertical", 33),
    Sketcher.Constraint("Coincident", 38, 3, 3, 3),
    Sketcher.Constraint("Coincident", 39, 3, 16, 3),
    Sketcher.Constraint("Coincident", 40, 3, 35, 3),
    Sketcher.Constraint("Coincident", 45, 3, 22, 3),
    Sketcher.Constraint("Equal", 4, 6),
    Sketcher.Constraint("Equal", 6, 8),
    Sketcher.Constraint("Equal", 8, 10),
    Sketcher.Constraint("Equal", 10, 12),
    Sketcher.Constraint("Equal", 12, 14),
    Sketcher.Constraint("Equal", 3, 16),
    Sketcher.Constraint("Equal", 16, 22),
    Sketcher.Constraint("Equal", 14, 24),
    Sketcher.Constraint("Equal", 24, 26),
    Sketcher.Constraint("Equal", 26, 28),
    Sketcher.Constraint("Equal", 28, 30),
    Sketcher.Constraint("Equal", 30, 32),
    Sketcher.Constraint("Equal", 32, 34),
    Sketcher.Constraint("Equal", 22, 35),
    Sketcher.Constraint("Equal", 34, 36),
    Sketcher.Constraint("Equal", 36, 37),
    Sketcher.Constraint("Equal", 38, 39),
    Sketcher.Constraint("Equal", 39, 40),
    Sketcher.Constraint("Equal", 41, 42),
    Sketcher.Constraint("Equal", 37, 43),
    Sketcher.Constraint("Equal", 43, 44),
    Sketcher.Constraint("Equal", 40, 45),
    Sketcher.Constraint("Equal", 44, 46),
    Sketcher.Constraint("Equal", 46, 47),
    Sketcher.Constraint("Symmetric", 3, 3, 16, 3, -2),
    Sketcher.Constraint("Symmetric", 22, 3, 35, 3, -2),
    Sketcher.Constraint("Symmetric", 1, 2, 17, 2, -2),
    Sketcher.Constraint("Symmetric", 0, 2, 20, 2, -2),
    Sketcher.Constraint("Symmetric", 41, 1, 42, 1, -2),
    Sketcher.Constraint("PointOnObject", 1, 3, -2),
    Sketcher.Constraint("Parallel", 0, 17),
    Sketcher.Constraint("Horizontal", 36, 3, 37, 3),
    Sketcher.Constraint("Horizontal", 43, 3, 44, 3),
    Sketcher.Constraint("Horizontal", 1, 3, 46, 3),
    Sketcher.Constraint("Horizontal", 46, 3, 47, 3),
    Sketcher.Constraint("Horizontal", 47, 3, 41, 1),
    Sketcher.Constraint("Vertical", 3, 3, 4, 3),
    Sketcher.Constraint("Vertical", 16, 3, 22, 3),
    Sketcher.Constraint("Vertical", 14, 3, 24, 3),
    Sketcher.Constraint("Vertical", 10, 3, 28, 3),
    Sketcher.Constraint("Vertical", 6, 3, 32, 3),
    Sketcher.Constraint("Vertical", 36, 3, 43, 3),
    Sketcher.Constraint("Vertical", 37, 3, 44, 3),
    Sketcher.Constraint("Equal", 13, 25),
    Sketcher.Constraint("Equal", 9, 29),
    Sketcher.Constraint("Diameter", 36, Q("6 mm")),
    Sketcher.Constraint("Diameter", 38, Q("8 mm")),
    Sketcher.Constraint("Radius", 3, Q("12 mm")),
    Sketcher.Constraint("Radius", 1, Q("42.5 mm")),
    Sketcher.Constraint("Radius", 41, Q("18.6 mm")),
    Sketcher.Constraint("DistanceX", 7, 2, 7, 1, Q("12 mm")),
    Sketcher.Constraint("DistanceX", 11, 1, 11, 2, Q("34 mm")),
    Sketcher.Constraint("DistanceX", 15, 1, 15, 2, Q("17 mm")),
    Sketcher.Constraint("DistanceX", 18, 1, 18, 2, Q("40 mm")),
    Sketcher.Constraint("DistanceY", 5, 2, 5, 1, Q("49 mm")),
    Sketcher.Constraint("DistanceY", 9, 2, 9, 1, Q("9 mm")),
    Sketcher.Constraint("DistanceY", -1, 1, 1, 3, Q("100 mm")),
    Sketcher.Constraint("DistanceY", -1, 1, 3, 3, Q("57 mm")),
    Sketcher.Constraint("DistanceX", 36, 3, -1, 1, Q("29.5 mm")),
    Sketcher.Constraint("DistanceY", 36, 3, -1, 1, Q("17.5 mm")),
    Sketcher.Constraint("DistanceX", 37, 3, -1, 1, Q("5.5 mm")),
    Sketcher.Constraint("DistanceY", -1, 1, 41, 3, Q("116.4 mm")),
    Sketcher.Constraint("DistanceY", -1, 1, 43, 3, Q("217.5 mm")),
    Sketcher.Constraint("DistanceX", -1, 1, 46, 3, Q("51.673808 mm")),
    Sketcher.Constraint("DistanceX", -1, 1, 47, 3, Q("73.673808 mm")),
])
pad3 = doc.addObject("PartDesign::Pad", "Pad002")
body2.addObject(pad3)
pad3.Profile = sketch3
pad3.Length = 10
doc.recompute()

fillet = doc.addObject("PartDesign::Fillet", "Fillet")
body2.addObject(fillet)
fillet.Base = (pad3, edges_at(pad3, [(8.775, 100, 65), (-8.775, 100, 65)]))
fillet.Radius = 1
body3 = doc.addObject("PartDesign::Body", "Body002")

# Sketch on XZ plane
sketch4 = doc.addObject("Sketcher::SketchObject", "Sketch003")
body3.addObject(sketch4)
sketch4.AttachmentSupport = (doc.getObject("XZ_Plane002"), [""])
sketch4.MapMode = "FlatFace"
sketch4.addGeometry([
    Part.ArcOfCircle(Part.Circle(App.Vector(53, -25.5, 0), App.Vector(0, 0, 1), 10.3), math.radians(154), math.radians(229)),  # 0
    Part.ArcOfCircle(Part.Circle(App.Vector(0, 0, 0), App.Vector(0, 0, 1), 48.5), math.radians(-26), math.radians(47)),  # 1
    Part.ArcOfCircle(Part.Circle(App.Vector(40.1, 43, 0), App.Vector(0, 0, 1), 10.3), math.radians(152), math.radians(227)),  # 2
    Part.ArcOfCircle(Part.Circle(App.Vector(22.2, 52.5, 0), App.Vector(0, 0, 1), 10), math.radians(-28), math.radians(162)),  # 3
    Part.ArcOfCircle(Part.Circle(App.Vector(2.8, 58.7, 0), App.Vector(0, 0, 1), 10.3), math.radians(-93), math.radians(-18)),  # 4
    Part.ArcOfCircle(Part.Circle(App.Vector(0, 0, 0), App.Vector(0, 0, 1), 48.5), math.radians(87), math.radians(160)),  # 5
    Part.ArcOfCircle(Part.Circle(App.Vector(-55.2, 20.2, 0), App.Vector(0, 0, 1), 10.3), math.radians(-95), math.radians(-20)),  # 6
    Part.ArcOfCircle(Part.Circle(App.Vector(-57, 0, 0), App.Vector(0, 0, 1), 10), math.radians(85), math.radians(275)),  # 7
    Part.ArcOfCircle(Part.Circle(App.Vector(-55.2, -20.2, 0), App.Vector(0, 0, 1), 10.3), math.radians(20), math.radians(95)),  # 8
    Part.ArcOfCircle(Part.Circle(App.Vector(0, 0, 0), App.Vector(0, 0, 1), 48.5), math.radians(-160), math.radians(-66)),  # 9
    Part.ArcOfCircle(Part.Circle(App.Vector(24, -53.7, 0), App.Vector(0, 0, 1), 10.3), math.radians(39), math.radians(114)),  # 10
    Part.ArcOfCircle(Part.Circle(App.Vector(39.8, -40.8, 0), App.Vector(0, 0, 1), 10), math.radians(-141), math.radians(49)),  # 11
    Part.Circle(App.Vector(-57, 0, 0), App.Vector(0, 0, 1), 4.5),  # 12
    Part.Circle(App.Vector(39.8, -40.8, 0), App.Vector(0, 0, 1), 4.5),  # 13
    Part.Circle(App.Vector(0, 0, 0), App.Vector(0, 0, 1), 38),  # 14
    Part.Circle(App.Vector(22.2, 52.5, 0), App.Vector(0, 0, 1), 4.5),  # 15
], False)
sketch4.addConstraint([
    Sketcher.Constraint("Tangent", 0, 1, 1, 1),
    Sketcher.Constraint("Tangent", 1, 2, 2, 2),
    Sketcher.Constraint("Tangent", 2, 1, 3, 1),
    Sketcher.Constraint("Tangent", 3, 2, 4, 2),
    Sketcher.Constraint("Tangent", 4, 1, 5, 1),
    Sketcher.Constraint("Tangent", 5, 2, 6, 2),
    Sketcher.Constraint("Tangent", 6, 1, 7, 1),
    Sketcher.Constraint("Tangent", 7, 2, 8, 2),
    Sketcher.Constraint("Tangent", 8, 1, 9, 1),
    Sketcher.Constraint("Tangent", 9, 2, 10, 2),
    Sketcher.Constraint("Tangent", 10, 1, 11, 1),
    Sketcher.Constraint("Tangent", 11, 2, 0, 2),
    Sketcher.Constraint("Coincident", 1, 3, -1, 1),
    Sketcher.Constraint("Coincident", 5, 3, -1, 1),
    Sketcher.Constraint("Coincident", 9, 3, -1, 1),
    Sketcher.Constraint("Coincident", 14, 3, -1, 1),
    Sketcher.Constraint("Coincident", 12, 3, 7, 3),
    Sketcher.Constraint("Coincident", 13, 3, 11, 3),
    Sketcher.Constraint("Coincident", 15, 3, 3, 3),
    Sketcher.Constraint("Equal", 0, 2),
    Sketcher.Constraint("Equal", 2, 4),
    Sketcher.Constraint("Equal", 1, 5),
    Sketcher.Constraint("Equal", 4, 6),
    Sketcher.Constraint("Equal", 3, 7),
    Sketcher.Constraint("Equal", 6, 8),
    Sketcher.Constraint("Equal", 5, 9),
    Sketcher.Constraint("Equal", 8, 10),
    Sketcher.Constraint("Equal", 7, 11),
    Sketcher.Constraint("Equal", 12, 13),
    Sketcher.Constraint("Equal", 13, 15),
    Sketcher.Constraint("PointOnObject", 7, 3, -1),
    Sketcher.Constraint("Diameter", 12, Q("9 mm")),
    Sketcher.Constraint("Radius", 3, Q("10 mm")),
    Sketcher.Constraint("Diameter", 14, Q("76.1 mm")),
    Sketcher.Constraint("Radius", 1, Q("48.5 mm")),
    Sketcher.Constraint("DistanceX", 7, 3, -1, 1, Q("57 mm")),
    Sketcher.Constraint("Radius", 0, Q("10.307471 mm")),
    Sketcher.Constraint("DistanceY", 2, 3, 2, 1, Q("4.826002 mm")),
    Sketcher.Constraint("DistanceY", 4, 1, 3, 3, Q("4.069699 mm")),
    Sketcher.Constraint("DistanceY", 9, 2, 13, 3, Q("3.4257 mm")),
    Sketcher.Constraint("DistanceX", -1, 1, 0, 3, Q("53.01203 mm")),
])
pad4 = doc.addObject("PartDesign::Pad", "Pad003")
body3.addObject(pad4)
pad4.Profile = sketch4
pad4.Length = 10

doc.recompute()
